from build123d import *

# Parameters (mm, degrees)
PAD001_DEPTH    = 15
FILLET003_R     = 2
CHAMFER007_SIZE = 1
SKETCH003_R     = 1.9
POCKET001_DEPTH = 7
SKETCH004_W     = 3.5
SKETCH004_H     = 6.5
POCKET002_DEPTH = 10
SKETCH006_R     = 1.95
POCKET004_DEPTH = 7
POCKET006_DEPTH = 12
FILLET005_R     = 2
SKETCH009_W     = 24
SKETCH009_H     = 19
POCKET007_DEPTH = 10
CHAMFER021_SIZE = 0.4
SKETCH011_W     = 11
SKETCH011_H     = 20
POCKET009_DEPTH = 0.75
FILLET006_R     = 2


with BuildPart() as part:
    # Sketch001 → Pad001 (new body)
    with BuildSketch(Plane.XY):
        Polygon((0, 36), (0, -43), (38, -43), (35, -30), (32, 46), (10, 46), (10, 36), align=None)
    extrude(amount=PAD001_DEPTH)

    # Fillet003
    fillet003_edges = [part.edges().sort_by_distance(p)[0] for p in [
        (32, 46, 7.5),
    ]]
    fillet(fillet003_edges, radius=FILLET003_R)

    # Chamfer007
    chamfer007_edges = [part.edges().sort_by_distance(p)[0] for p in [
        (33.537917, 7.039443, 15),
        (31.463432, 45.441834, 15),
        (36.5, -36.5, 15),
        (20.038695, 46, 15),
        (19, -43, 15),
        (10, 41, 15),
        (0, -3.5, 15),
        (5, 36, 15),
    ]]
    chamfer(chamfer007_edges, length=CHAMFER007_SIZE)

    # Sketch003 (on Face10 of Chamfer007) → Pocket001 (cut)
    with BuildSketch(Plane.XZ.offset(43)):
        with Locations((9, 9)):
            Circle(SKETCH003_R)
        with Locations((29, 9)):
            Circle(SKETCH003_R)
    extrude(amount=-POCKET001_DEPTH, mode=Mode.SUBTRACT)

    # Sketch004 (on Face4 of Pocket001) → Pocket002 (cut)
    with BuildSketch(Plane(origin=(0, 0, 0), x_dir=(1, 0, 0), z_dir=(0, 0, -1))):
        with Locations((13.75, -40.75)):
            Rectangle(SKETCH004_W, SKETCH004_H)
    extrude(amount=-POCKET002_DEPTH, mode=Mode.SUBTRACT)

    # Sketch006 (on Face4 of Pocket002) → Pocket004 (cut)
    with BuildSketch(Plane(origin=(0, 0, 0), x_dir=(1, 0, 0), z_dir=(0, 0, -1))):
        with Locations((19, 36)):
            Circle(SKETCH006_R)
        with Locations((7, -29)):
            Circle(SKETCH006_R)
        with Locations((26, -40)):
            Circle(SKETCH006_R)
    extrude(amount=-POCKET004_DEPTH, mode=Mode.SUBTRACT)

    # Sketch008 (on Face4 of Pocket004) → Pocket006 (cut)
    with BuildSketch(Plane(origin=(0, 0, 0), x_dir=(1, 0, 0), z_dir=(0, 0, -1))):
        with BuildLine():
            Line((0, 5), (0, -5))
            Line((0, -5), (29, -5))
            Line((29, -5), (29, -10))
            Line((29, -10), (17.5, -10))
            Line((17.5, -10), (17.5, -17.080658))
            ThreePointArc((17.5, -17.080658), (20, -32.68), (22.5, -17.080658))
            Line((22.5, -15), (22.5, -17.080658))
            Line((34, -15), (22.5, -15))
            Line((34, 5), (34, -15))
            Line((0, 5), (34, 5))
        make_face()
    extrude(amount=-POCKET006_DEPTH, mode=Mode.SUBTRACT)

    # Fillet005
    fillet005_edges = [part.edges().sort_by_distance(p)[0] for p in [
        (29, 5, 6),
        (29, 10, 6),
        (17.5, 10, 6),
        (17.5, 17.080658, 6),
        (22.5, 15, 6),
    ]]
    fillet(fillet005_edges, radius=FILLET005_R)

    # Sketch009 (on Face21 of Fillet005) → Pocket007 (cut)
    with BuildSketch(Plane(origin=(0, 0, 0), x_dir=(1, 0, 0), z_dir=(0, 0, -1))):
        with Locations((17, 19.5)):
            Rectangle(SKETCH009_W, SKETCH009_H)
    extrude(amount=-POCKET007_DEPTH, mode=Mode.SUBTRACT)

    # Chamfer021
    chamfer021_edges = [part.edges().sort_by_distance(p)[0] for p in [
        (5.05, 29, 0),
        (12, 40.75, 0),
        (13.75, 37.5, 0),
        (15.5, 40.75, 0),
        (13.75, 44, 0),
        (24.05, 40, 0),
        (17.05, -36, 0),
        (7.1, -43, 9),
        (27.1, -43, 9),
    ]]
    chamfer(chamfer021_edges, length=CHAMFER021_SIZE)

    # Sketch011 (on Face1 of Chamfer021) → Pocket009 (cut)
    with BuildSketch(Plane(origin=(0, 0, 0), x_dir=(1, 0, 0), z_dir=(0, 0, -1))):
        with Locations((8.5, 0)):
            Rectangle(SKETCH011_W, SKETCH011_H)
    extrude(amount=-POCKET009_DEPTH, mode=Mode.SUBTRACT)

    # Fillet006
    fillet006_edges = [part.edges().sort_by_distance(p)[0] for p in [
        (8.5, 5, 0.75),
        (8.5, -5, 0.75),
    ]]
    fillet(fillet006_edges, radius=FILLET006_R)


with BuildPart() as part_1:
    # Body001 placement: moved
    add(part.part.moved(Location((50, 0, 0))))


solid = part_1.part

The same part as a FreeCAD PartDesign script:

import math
import FreeCAD as App
import Part
import Sketcher


def edges_at(feature, points):
    """Names of the edges that pass closest to the given points."""
    edges = feature.Shape.Edges
    near = lambda p: min(range(len(edges)), key=lambda i: edges[i].distToShape(Part.Vertex(*p))[0])
    return sorted({f"Edge{near(p) + 1}" for p in points})

doc = App.newDocument("Part")
params = doc.addObject("Spreadsheet::Sheet", "Params")
for row, (alias, value) in enumerate([
    ("sketch1_width", "38 mm"),
    ("sketch1_width2", "22 mm"),
    ("sketch1_width3", "10 mm"),
    ("sketch1_height", "79 mm"),
    ("pad1_length", "15 mm"),
    ("fillet_radius", "2 mm"),
    ("chamfer_size", "1 mm"),
    ("sketch2_diameter", "3.8 mm"),
    ("pocket1_length", "7 mm"),
    ("sketch3_width", "3.5 mm"),
    ("sketch3_height", "6.5 mm"),
    ("pocket2_length", "10 mm"),
    ("sketch4_diameter", "3.9 mm"),
    ("pocket3_length", "7 mm"),
    ("sketch5_radius", "8 mm"),
    ("sketch5_width", "29 mm"),
    ("sketch5_width2", "34 mm"),
    ("sketch5_height", "10 mm"),
    ("sketch5_height2", "5 mm"),
    ("pocket4_length", "12 mm"),
    ("fillet2_radius", "2 mm"),
    ("sketch6_width", "24 mm"),
    ("sketch6_height", "19 mm"),
    ("pocket5_length", "10 mm"),
    ("chamfer2_size", "0.4 mm"),
    ("sketch7_width", "11 mm"),
    ("sketch7_height", "20 mm"),
    ("pocket6_length", "0.75 mm"),
    ("fillet3_radius", "2 mm"),
], start=1):
    params.set(f"A{row}", alias)
    params.set(f"B{row}", "=" + value)
    params.setAlias(f"B{row}", alias)

body = doc.addObject("PartDesign::Body", "Body")

# Sketch on XY plane
sketch1 = body.newObject("Sketcher::SketchObject", "Sketch")
sketch1.AttachmentSupport = (doc.getObject("XY_Plane"), [""])
sketch1.MapMode = "FlatFace"
sketch1.addGeometry([
    Part.LineSegment(App.Vector(0, 36, 0), App.Vector(0, -43, 0)),  # 0
    Part.LineSegment(App.Vector(0, -43, 0), App.Vector(38, -43, 0)),  # 1
    Part.LineSegment(App.Vector(38, -43, 0), App.Vector(35, -30, 0)),  # 2
    Part.LineSegment(App.Vector(35, -30, 0), App.Vector(32, 46, 0)),  # 3
    Part.LineSegment(App.Vector(32, 46, 0), App.Vector(10, 46, 0)),  # 4
    Part.LineSegment(App.Vector(10, 46, 0), App.Vector(10, 36, 0)),  # 5
    Part.LineSegment(App.Vector(10, 36, 0), App.Vector(0, 36, 0)),  # 6
], False)
sketch1.addConstraint([
    Sketcher.Constraint("Coincident", 0, 2, 1, 1),
    Sketcher.Constraint("Coincident", 1, 2, 2, 1),
    Sketcher.Constraint("Coincident", 2, 2, 3, 1),
    Sketcher.Constraint("Coincident", 3, 2, 4, 1),
    Sketcher.Constraint("Coincident", 4, 2, 5, 1),
    Sketcher.Constraint("Coincident", 5, 2, 6, 1),
    Sketcher.Constraint("Coincident", 6, 2, 0, 1),
    Sketcher.Constraint("Vertical", 0),
    Sketcher.Constraint("Horizontal", 1),
    Sketcher.Constraint("Horizontal", 4),
    Sketcher.Constraint("Vertical", 5),
    Sketcher.Constraint("Horizontal", 6),
    Sketcher.Constraint("PointOnObject", 0, 2, -2),
    Sketcher.Constraint("Equal", 6, 5),
    Sketcher.Constraint("DistanceX", 1, 1, 1, 2, 38.0),
    Sketcher.Constraint("DistanceX", 4, 2, 4, 1, 22.0),
    Sketcher.Constraint("DistanceX", 6, 2, 6, 1, 10.0),
    Sketcher.Constraint("DistanceY", 0, 2, 0, 1, 79.0),
    Sketcher.Constraint("DistanceY", 0, 2, -1, 1, 43.0),
    Sketcher.Constraint("DistanceX", -1, 1, 2, 2, 35.0),
    Sketcher.Constraint("DistanceY", 2, 2, -1, 1, 30.0),
])
sketch1.setExpression("Constraints[14]", "Params.sketch1_width")
sketch1.setExpression("Constraints[15]", "Params.sketch1_width2")
sketch1.setExpression("Constraints[16]", "Params.sketch1_width3")
sketch1.setExpression("Constraints[17]", "Params.sketch1_height")
pad1 = body.newObject("PartDesign::Pad", "Pad")
pad1.Profile = sketch1
pad1.setExpression("Length", "Params.pad1_length")
doc.recompute()

fillet = body.newObject("PartDesign::Fillet", "Fillet")
fillet.Base = (pad1, edges_at(pad1, [(32, 46, 7.5)]))
fillet.setExpression("Radius", "Params.fillet_radius")
doc.recompute()

chamfer = body.newObject("PartDesign::Chamfer", "Chamfer")
chamfer.Base = (fillet, edges_at(fillet, [
    (33.538, 7.039, 15),
    (31.463, 45.442, 15),
    (36.5, -36.5, 15),
    (20.039, 46, 15),
    (19, -43, 15),
    (10, 41, 15),
    (0, -3.5, 15),
    (5, 36, 15),
]))
chamfer.setExpression("Size", "Params.chamfer_size")

# Sketch on XZ plane
sketch2 = body.newObject("Sketcher::SketchObject", "Sketch001")
sketch2.AttachmentSupport = (doc.getObject("XZ_Plane"), [""])
sketch2.MapMode = "FlatFace"
sketch2.AttachmentOffset = App.Placement(App.Vector(0, 0, 43), App.Rotation())
sketch2.addGeometry([
    Part.Circle(App.Vector(9, 9, 0), App.Vector(0, 0, 1), 1.9),
    Part.Circle(App.Vector(29, 9, 0), App.Vector(0, 0, 1), 1.9),
], False)
sketch2.addConstraint([
    Sketcher.Constraint("Equal", 0, 1),
    Sketcher.Constraint("Horizontal", 0, 3, 1, 3),
    Sketcher.Constraint("Diameter", 0, 3.8),
    Sketcher.Constraint("DistanceX", -1, 1, 0, 3, 9.0),
    Sketcher.Constraint("DistanceY", -1, 1, 0, 3, 9.0),
    Sketcher.Constraint("DistanceX", -1, 1, 1, 3, 29.0),
])
sketch2.setExpression("Constraints[2]", "Params.sketch2_diameter")
pocket1 = body.newObject("PartDesign::Pocket", "Pocket")
pocket1.Profile = sketch2
pocket1.setExpression("Length", "Params.pocket1_length")

# Sketch on XY plane
sketch3 = body.newObject("Sketcher::SketchObject", "Sketch002")
sketch3.AttachmentSupport = (doc.getObject("XY_Plane"), [""])
sketch3.MapMode = "FlatFace"
sketch3.addGeometry([
    Part.LineSegment(App.Vector(12, 37.5, 0), App.Vector(12, 44, 0)),
    Part.LineSegment(App.Vector(12, 44, 0), App.Vector(15.5, 44, 0)),
    Part.LineSegment(App.Vector(15.5, 44, 0), App.Vector(15.5, 37.5, 0)),
    Part.LineSegment(App.Vector(15.5, 37.5, 0), App.Vector(12, 37.5, 0)),
], False)
sketch3.addConstraint([
    Sketcher.Constraint("Coincident", 0, 2, 1, 1),
    Sketcher.Constraint("Coincident", 1, 2, 2, 1),
    Sketcher.Constraint("Coincident", 2, 2, 3, 1),
    Sketcher.Constraint("Coincident", 3, 2, 0, 1),
    Sketcher.Constraint("Vertical", 0),
    Sketcher.Constraint("Horizontal", 1),
    Sketcher.Constraint("Vertical", 2),
    Sketcher.Constraint("Horizontal", 3),
    Sketcher.Constraint("DistanceX", 1, 1, 1, 2, 3.5),
    Sketcher.Constraint("DistanceY", 0, 1, 0, 2, 6.5),
    Sketcher.Constraint("DistanceX", -1, 1, 0, 2, 12.0),
    Sketcher.Constraint("DistanceY", -1, 1, 0, 2, 44.0),
])
sketch3.setExpression("Constraints[8]", "Params.sketch3_width")
sketch3.setExpression("Constraints[9]", "Params.sketch3_height")
pocket2 = body.newObject("PartDesign::Pocket", "Pocket001")
pocket2.Profile = sketch3
pocket2.setExpression("Length", "Params.pocket2_length")
pocket2.Reversed = True

# Sketch on XY plane
sketch4 = body.newObject("Sketcher::SketchObject", "Sketch003")
sketch4.AttachmentSupport = (doc.getObject("XY_Plane"), [""])
sketch4.MapMode = "FlatFace"
sketch4.addGeometry([
    Part.Circle(App.Vector(19, -36, 0), App.Vector(0, 0, 1), 1.9),
    Part.Circle(App.Vector(7, 29, 0), App.Vector(0, 0, 1), 1.9),
    Part.Circle(App.Vector(26, 40, 0), App.Vector(0, 0, 1), 1.9),
], False)
sketch4.addConstraint([
    Sketcher.Constraint("Equal", 0, 1),
    Sketcher.Constraint("Equal", 1, 2),
    Sketcher.Constraint("Diameter", 0, 3.9),
    Sketcher.Constraint("DistanceX", -1, 1, 0, 3, 19.0),
    Sketcher.Constraint("DistanceY", 0, 3, -1, 1, 36.0),
    Sketcher.Constraint("DistanceX", -1, 1, 1, 3, 7.0),
    Sketcher.Constraint("DistanceY", -1, 1, 1, 3, 29.0),
    Sketcher.Constraint("DistanceX", -1, 1, 2, 3, 26.0),
    Sketcher.Constraint("DistanceY", -1, 1, 2, 3, 40.0),
])
sketch4.setExpression("Constraints[2]", "Params.sketch4_diameter")
pocket3 = body.newObject("PartDesign::Pocket", "Pocket002")
pocket3.Profile = sketch4
pocket3.setExpression("Length", "Params.pocket3_length")
pocket3.Reversed = True

# Sketch on XY plane
sketch5 = body.newObject("Sketcher::SketchObject", "Sketch004")
sketch5.AttachmentSupport = (doc.getObject("XY_Plane"), [""])
sketch5.MapMode = "FlatFace"
sketch5.addGeometry([
    Part.LineSegment(App.Vector(0, -5, 0), App.Vector(0, 5, 0)),  # 0
    Part.LineSegment(App.Vector(0, 5, 0), App.Vector(29, 5, 0)),  # 1
    Part.LineSegment(App.Vector(29, 5, 0), App.Vector(29, 10, 0)),  # 2
    Part.LineSegment(App.Vector(29, 10, 0), App.Vector(17.5, 10, 0)),  # 3
    Part.LineSegment(App.Vector(17.5, 10, 0), App.Vector(17.5, 17.1, 0)),  # 4
    Part.ArcOfCircle(Part.Circle(App.Vector(20, 24.7, 0), App.Vector(0, 0, 1), 8), math.radians(-72), math.radians(252)),  # 5
    Part.LineSegment(App.Vector(22.5, 17.1, 0), App.Vector(22.5, 15, 0)),  # 6
    Part.LineSegment(App.Vector(22.5, 15, 0), App.Vector(34, 15, 0)),  # 7
    Part.LineSegment(App.Vector(34, 15, 0), App.Vector(34, -5, 0)),  # 8
    Part.LineSegment(App.Vector(34, -5, 0), App.Vector(0, -5, 0)),  # 9
], False)
sketch5.addConstraint([
    Sketcher.Constraint("Coincident", 0, 2, 1, 1),
    Sketcher.Constraint("Coincident", 1, 2, 2, 1),
    Sketcher.Constraint("Coincident", 2, 2, 3, 1),
    Sketcher.Constraint("Coincident", 3, 2, 4, 1),
    Sketcher.Constraint("Coincident", 4, 2, 5, 2),
    Sketcher.Constraint("Coincident", 5, 1, 6, 1),
    Sketcher.Constraint("Coincident", 6, 2, 7, 1),
    Sketcher.Constraint("Coincident", 7, 2, 8, 1),
    Sketcher.Constraint("Coincident", 8, 2, 9, 1),
    Sketcher.Constraint("Coincident", 9, 2, 0, 1),
    Sketcher.Constraint("Vertical", 0),
    Sketcher.Constraint("Horizontal", 1),
    Sketcher.Constraint("Vertical", 2),
    Sketcher.Constraint("Horizontal", 3),
    Sketcher.Constraint("Vertical", 4),
    Sketcher.Constraint("Vertical", 6),
    Sketcher.Constraint("Horizontal", 7),
    Sketcher.Constraint("Vertical", 8),
    Sketcher.Constraint("Horizontal", 9),
    Sketcher.Constraint("Symmetric", 0, 2, 9, 2, -1, 1),
    Sketcher.Constraint("Horizontal", 4, 2, 5, 1),
    Sketcher.Constraint("Equal", 3, 7),
    Sketcher.Constraint("Radius", 5, 8.0),
    Sketcher.Constraint("DistanceX", 1, 1, 1, 2, 29.0),
    Sketcher.Constraint("DistanceX", 9, 2, 9, 1, 34.0),
    Sketcher.Constraint("DistanceY", 0, 1, 0, 2, 10.0),
    Sketcher.Constraint("DistanceY", 2, 1, 2, 2, 5.0),
    Sketcher.Constraint("DistanceY", 8, 2, 8, 1, 20.0),
    Sketcher.Constraint("DistanceX", 3, 2, 3, 1, 11.5),
    Sketcher.Constraint("DistanceY", -1, 1, 5, 3, 24.68),
])
sketch5.setExpression("Constraints[22]", "Params.sketch5_radius")
sketch5.setExpression("Constraints[23]", "Params.sketch5_width")
sketch5.setExpression("Constraints[24]", "Params.sketch5_width2")
sketch5.setExpression("Constraints[25]", "Params.sketch5_height")
sketch5.setExpression("Constraints[26]", "Params.sketch5_height2")
pocket4 = body.newObject("PartDesign::Pocket", "Pocket003")
pocket4.Profile = sketch5
pocket4.setExpression("Length", "Params.pocket4_length")
pocket4.Reversed = True
doc.recompute()

fillet2 = body.newObject("PartDesign::Fillet", "Fillet001")
fillet2.Base = (pocket4, edges_at(pocket4, [
    (29, 5, 6),
    (29, 10, 6),
    (17.5, 10, 6),
    (17.5, 17.081, 6),
    (22.5, 15, 6),
]))
fillet2.setExpression("Radius", "Params.fillet2_radius")

# Sketch on XY plane
sketch6 = body.newObject("Sketcher::SketchObject", "Sketch005")
sketch6.AttachmentSupport = (doc.getObject("XY_Plane"), [""])
sketch6.MapMode = "FlatFace"
sketch6.addGeometry([
    Part.LineSegment(App.Vector(5, -29, 0), App.Vector(5, -10, 0)),
    Part.LineSegment(App.Vector(5, -10, 0), App.Vector(29, -10, 0)),
    Part.LineSegment(App.Vector(29, -10, 0), App.Vector(29, -29, 0)),
    Part.LineSegment(App.Vector(29, -29, 0), App.Vector(5, -29, 0)),
], False)
sketch6.addConstraint([
    Sketcher.Constraint("Coincident", 0, 2, 1, 1),
    Sketcher.Constraint("Coincident", 1, 2, 2, 1),
    Sketcher.Constraint("Coincident", 2, 2, 3, 1),
    Sketcher.Constraint("Coincident", 3, 2, 0, 1),
    Sketcher.Constraint("Vertical", 0),
    Sketcher.Constraint("Horizontal", 1),
    Sketcher.Constraint("Vertical", 2),
    Sketcher.Constraint("Horizontal", 3),
    Sketcher.Constraint("DistanceX", 1, 1, 1, 2, 24.0),
    Sketcher.Constraint("DistanceY", 0, 1, 0, 2, 19.0),
    Sketcher.Constraint("DistanceX", -1, 1, 0, 2, 5.0),
    Sketcher.Constraint("DistanceY", 0, 2, -1, 1, 10.0),
])
sketch6.setExpression("Constraints[8]", "Params.sketch6_width")
sketch6.setExpression("Constraints[9]", "Params.sketch6_height")
pocket5 = body.newObject("PartDesign::Pocket", "Pocket004")
pocket5.Profile = sketch6
pocket5.setExpression("Length", "Params.pocket5_length")
pocket5.Reversed = True
doc.recompute()

chamfer2 = body.newObject("PartDesign::Chamfer", "Chamfer001")
chamfer2.Base = (pocket5, edges_at(pocket5, [
    (5.05, 29, 0),
    (12, 40.75, 0),
    (13.75, 37.5, 0),
    (15.5, 40.75, 0),
    (13.75, 44, 0),
    (24.05, 40, 0),
    (17.05, -36, 0),
    (7.1, -43, 9),
    (27.1, -43, 9),
]))
chamfer2.setExpression("Size", "Params.chamfer2_size")

# Sketch on XY plane
sketch7 = body.newObject("Sketcher::SketchObject", "Sketch006")
sketch7.AttachmentSupport = (doc.getObject("XY_Plane"), [""])
sketch7.MapMode = "FlatFace"
sketch7.addGeometry([
    Part.LineSegment(App.Vector(3, -10, 0), App.Vector(3, 10, 0)),
    Part.LineSegment(App.Vector(3, 10, 0), App.Vector(14, 10, 0)),
    Part.LineSegment(App.Vector(14, 10, 0), App.Vector(14, -10, 0)),
    Part.LineSegment(App.Vector(14, -10, 0), App.Vector(3, -10, 0)),
], False)
sketch7.addConstraint([
    Sketcher.Constraint("Coincident", 0, 2, 1, 1),
    Sketcher.Constraint("Coincident", 1, 2, 2, 1),
    Sketcher.Constraint("Coincident", 2, 2, 3, 1),
    Sketcher.Constraint("Coincident", 3, 2, 0, 1),
    Sketcher.Constraint("Vertical", 0),
    Sketcher.Constraint("Horizontal", 1),
    Sketcher.Constraint("Vertical", 2),
    Sketcher.Constraint("Horizontal", 3),
    Sketcher.Constraint("DistanceX", 1, 1, 1, 2, 11.0),
    Sketcher.Constraint("DistanceY", 0, 1, 0, 2, 20.0),
    Sketcher.Constraint("DistanceX", -1, 1, 0, 2, 3.0),
    Sketcher.Constraint("DistanceY", -1, 1, 0, 2, 10.0),
])
sketch7.setExpression("Constraints[8]", "Params.sketch7_width")
sketch7.setExpression("Constraints[9]", "Params.sketch7_height")
pocket6 = body.newObject("PartDesign::Pocket", "Pocket005")
pocket6.Profile = sketch7
pocket6.setExpression("Length", "Params.pocket6_length")
pocket6.Reversed = True
doc.recompute()

fillet3 = body.newObject("PartDesign::Fillet", "Fillet002")
fillet3.Base = (pocket6, edges_at(pocket6, [(8.5, 5, 0.75), (8.5, -5, 0.75)]))
fillet3.setExpression("Radius", "Params.fillet3_radius")
body2 = doc.addObject("PartDesign::Body", "Body001")
doc.recompute()

body.Placement = App.Placement(App.Vector(50, 0, 0), App.Rotation(App.Vector(0, 0, 1), 0))
boolean = body2.newObject("PartDesign::Boolean", "Boolean")
boolean.Type = "Fuse"
boolean.addObjects([body])

doc.recompute()
